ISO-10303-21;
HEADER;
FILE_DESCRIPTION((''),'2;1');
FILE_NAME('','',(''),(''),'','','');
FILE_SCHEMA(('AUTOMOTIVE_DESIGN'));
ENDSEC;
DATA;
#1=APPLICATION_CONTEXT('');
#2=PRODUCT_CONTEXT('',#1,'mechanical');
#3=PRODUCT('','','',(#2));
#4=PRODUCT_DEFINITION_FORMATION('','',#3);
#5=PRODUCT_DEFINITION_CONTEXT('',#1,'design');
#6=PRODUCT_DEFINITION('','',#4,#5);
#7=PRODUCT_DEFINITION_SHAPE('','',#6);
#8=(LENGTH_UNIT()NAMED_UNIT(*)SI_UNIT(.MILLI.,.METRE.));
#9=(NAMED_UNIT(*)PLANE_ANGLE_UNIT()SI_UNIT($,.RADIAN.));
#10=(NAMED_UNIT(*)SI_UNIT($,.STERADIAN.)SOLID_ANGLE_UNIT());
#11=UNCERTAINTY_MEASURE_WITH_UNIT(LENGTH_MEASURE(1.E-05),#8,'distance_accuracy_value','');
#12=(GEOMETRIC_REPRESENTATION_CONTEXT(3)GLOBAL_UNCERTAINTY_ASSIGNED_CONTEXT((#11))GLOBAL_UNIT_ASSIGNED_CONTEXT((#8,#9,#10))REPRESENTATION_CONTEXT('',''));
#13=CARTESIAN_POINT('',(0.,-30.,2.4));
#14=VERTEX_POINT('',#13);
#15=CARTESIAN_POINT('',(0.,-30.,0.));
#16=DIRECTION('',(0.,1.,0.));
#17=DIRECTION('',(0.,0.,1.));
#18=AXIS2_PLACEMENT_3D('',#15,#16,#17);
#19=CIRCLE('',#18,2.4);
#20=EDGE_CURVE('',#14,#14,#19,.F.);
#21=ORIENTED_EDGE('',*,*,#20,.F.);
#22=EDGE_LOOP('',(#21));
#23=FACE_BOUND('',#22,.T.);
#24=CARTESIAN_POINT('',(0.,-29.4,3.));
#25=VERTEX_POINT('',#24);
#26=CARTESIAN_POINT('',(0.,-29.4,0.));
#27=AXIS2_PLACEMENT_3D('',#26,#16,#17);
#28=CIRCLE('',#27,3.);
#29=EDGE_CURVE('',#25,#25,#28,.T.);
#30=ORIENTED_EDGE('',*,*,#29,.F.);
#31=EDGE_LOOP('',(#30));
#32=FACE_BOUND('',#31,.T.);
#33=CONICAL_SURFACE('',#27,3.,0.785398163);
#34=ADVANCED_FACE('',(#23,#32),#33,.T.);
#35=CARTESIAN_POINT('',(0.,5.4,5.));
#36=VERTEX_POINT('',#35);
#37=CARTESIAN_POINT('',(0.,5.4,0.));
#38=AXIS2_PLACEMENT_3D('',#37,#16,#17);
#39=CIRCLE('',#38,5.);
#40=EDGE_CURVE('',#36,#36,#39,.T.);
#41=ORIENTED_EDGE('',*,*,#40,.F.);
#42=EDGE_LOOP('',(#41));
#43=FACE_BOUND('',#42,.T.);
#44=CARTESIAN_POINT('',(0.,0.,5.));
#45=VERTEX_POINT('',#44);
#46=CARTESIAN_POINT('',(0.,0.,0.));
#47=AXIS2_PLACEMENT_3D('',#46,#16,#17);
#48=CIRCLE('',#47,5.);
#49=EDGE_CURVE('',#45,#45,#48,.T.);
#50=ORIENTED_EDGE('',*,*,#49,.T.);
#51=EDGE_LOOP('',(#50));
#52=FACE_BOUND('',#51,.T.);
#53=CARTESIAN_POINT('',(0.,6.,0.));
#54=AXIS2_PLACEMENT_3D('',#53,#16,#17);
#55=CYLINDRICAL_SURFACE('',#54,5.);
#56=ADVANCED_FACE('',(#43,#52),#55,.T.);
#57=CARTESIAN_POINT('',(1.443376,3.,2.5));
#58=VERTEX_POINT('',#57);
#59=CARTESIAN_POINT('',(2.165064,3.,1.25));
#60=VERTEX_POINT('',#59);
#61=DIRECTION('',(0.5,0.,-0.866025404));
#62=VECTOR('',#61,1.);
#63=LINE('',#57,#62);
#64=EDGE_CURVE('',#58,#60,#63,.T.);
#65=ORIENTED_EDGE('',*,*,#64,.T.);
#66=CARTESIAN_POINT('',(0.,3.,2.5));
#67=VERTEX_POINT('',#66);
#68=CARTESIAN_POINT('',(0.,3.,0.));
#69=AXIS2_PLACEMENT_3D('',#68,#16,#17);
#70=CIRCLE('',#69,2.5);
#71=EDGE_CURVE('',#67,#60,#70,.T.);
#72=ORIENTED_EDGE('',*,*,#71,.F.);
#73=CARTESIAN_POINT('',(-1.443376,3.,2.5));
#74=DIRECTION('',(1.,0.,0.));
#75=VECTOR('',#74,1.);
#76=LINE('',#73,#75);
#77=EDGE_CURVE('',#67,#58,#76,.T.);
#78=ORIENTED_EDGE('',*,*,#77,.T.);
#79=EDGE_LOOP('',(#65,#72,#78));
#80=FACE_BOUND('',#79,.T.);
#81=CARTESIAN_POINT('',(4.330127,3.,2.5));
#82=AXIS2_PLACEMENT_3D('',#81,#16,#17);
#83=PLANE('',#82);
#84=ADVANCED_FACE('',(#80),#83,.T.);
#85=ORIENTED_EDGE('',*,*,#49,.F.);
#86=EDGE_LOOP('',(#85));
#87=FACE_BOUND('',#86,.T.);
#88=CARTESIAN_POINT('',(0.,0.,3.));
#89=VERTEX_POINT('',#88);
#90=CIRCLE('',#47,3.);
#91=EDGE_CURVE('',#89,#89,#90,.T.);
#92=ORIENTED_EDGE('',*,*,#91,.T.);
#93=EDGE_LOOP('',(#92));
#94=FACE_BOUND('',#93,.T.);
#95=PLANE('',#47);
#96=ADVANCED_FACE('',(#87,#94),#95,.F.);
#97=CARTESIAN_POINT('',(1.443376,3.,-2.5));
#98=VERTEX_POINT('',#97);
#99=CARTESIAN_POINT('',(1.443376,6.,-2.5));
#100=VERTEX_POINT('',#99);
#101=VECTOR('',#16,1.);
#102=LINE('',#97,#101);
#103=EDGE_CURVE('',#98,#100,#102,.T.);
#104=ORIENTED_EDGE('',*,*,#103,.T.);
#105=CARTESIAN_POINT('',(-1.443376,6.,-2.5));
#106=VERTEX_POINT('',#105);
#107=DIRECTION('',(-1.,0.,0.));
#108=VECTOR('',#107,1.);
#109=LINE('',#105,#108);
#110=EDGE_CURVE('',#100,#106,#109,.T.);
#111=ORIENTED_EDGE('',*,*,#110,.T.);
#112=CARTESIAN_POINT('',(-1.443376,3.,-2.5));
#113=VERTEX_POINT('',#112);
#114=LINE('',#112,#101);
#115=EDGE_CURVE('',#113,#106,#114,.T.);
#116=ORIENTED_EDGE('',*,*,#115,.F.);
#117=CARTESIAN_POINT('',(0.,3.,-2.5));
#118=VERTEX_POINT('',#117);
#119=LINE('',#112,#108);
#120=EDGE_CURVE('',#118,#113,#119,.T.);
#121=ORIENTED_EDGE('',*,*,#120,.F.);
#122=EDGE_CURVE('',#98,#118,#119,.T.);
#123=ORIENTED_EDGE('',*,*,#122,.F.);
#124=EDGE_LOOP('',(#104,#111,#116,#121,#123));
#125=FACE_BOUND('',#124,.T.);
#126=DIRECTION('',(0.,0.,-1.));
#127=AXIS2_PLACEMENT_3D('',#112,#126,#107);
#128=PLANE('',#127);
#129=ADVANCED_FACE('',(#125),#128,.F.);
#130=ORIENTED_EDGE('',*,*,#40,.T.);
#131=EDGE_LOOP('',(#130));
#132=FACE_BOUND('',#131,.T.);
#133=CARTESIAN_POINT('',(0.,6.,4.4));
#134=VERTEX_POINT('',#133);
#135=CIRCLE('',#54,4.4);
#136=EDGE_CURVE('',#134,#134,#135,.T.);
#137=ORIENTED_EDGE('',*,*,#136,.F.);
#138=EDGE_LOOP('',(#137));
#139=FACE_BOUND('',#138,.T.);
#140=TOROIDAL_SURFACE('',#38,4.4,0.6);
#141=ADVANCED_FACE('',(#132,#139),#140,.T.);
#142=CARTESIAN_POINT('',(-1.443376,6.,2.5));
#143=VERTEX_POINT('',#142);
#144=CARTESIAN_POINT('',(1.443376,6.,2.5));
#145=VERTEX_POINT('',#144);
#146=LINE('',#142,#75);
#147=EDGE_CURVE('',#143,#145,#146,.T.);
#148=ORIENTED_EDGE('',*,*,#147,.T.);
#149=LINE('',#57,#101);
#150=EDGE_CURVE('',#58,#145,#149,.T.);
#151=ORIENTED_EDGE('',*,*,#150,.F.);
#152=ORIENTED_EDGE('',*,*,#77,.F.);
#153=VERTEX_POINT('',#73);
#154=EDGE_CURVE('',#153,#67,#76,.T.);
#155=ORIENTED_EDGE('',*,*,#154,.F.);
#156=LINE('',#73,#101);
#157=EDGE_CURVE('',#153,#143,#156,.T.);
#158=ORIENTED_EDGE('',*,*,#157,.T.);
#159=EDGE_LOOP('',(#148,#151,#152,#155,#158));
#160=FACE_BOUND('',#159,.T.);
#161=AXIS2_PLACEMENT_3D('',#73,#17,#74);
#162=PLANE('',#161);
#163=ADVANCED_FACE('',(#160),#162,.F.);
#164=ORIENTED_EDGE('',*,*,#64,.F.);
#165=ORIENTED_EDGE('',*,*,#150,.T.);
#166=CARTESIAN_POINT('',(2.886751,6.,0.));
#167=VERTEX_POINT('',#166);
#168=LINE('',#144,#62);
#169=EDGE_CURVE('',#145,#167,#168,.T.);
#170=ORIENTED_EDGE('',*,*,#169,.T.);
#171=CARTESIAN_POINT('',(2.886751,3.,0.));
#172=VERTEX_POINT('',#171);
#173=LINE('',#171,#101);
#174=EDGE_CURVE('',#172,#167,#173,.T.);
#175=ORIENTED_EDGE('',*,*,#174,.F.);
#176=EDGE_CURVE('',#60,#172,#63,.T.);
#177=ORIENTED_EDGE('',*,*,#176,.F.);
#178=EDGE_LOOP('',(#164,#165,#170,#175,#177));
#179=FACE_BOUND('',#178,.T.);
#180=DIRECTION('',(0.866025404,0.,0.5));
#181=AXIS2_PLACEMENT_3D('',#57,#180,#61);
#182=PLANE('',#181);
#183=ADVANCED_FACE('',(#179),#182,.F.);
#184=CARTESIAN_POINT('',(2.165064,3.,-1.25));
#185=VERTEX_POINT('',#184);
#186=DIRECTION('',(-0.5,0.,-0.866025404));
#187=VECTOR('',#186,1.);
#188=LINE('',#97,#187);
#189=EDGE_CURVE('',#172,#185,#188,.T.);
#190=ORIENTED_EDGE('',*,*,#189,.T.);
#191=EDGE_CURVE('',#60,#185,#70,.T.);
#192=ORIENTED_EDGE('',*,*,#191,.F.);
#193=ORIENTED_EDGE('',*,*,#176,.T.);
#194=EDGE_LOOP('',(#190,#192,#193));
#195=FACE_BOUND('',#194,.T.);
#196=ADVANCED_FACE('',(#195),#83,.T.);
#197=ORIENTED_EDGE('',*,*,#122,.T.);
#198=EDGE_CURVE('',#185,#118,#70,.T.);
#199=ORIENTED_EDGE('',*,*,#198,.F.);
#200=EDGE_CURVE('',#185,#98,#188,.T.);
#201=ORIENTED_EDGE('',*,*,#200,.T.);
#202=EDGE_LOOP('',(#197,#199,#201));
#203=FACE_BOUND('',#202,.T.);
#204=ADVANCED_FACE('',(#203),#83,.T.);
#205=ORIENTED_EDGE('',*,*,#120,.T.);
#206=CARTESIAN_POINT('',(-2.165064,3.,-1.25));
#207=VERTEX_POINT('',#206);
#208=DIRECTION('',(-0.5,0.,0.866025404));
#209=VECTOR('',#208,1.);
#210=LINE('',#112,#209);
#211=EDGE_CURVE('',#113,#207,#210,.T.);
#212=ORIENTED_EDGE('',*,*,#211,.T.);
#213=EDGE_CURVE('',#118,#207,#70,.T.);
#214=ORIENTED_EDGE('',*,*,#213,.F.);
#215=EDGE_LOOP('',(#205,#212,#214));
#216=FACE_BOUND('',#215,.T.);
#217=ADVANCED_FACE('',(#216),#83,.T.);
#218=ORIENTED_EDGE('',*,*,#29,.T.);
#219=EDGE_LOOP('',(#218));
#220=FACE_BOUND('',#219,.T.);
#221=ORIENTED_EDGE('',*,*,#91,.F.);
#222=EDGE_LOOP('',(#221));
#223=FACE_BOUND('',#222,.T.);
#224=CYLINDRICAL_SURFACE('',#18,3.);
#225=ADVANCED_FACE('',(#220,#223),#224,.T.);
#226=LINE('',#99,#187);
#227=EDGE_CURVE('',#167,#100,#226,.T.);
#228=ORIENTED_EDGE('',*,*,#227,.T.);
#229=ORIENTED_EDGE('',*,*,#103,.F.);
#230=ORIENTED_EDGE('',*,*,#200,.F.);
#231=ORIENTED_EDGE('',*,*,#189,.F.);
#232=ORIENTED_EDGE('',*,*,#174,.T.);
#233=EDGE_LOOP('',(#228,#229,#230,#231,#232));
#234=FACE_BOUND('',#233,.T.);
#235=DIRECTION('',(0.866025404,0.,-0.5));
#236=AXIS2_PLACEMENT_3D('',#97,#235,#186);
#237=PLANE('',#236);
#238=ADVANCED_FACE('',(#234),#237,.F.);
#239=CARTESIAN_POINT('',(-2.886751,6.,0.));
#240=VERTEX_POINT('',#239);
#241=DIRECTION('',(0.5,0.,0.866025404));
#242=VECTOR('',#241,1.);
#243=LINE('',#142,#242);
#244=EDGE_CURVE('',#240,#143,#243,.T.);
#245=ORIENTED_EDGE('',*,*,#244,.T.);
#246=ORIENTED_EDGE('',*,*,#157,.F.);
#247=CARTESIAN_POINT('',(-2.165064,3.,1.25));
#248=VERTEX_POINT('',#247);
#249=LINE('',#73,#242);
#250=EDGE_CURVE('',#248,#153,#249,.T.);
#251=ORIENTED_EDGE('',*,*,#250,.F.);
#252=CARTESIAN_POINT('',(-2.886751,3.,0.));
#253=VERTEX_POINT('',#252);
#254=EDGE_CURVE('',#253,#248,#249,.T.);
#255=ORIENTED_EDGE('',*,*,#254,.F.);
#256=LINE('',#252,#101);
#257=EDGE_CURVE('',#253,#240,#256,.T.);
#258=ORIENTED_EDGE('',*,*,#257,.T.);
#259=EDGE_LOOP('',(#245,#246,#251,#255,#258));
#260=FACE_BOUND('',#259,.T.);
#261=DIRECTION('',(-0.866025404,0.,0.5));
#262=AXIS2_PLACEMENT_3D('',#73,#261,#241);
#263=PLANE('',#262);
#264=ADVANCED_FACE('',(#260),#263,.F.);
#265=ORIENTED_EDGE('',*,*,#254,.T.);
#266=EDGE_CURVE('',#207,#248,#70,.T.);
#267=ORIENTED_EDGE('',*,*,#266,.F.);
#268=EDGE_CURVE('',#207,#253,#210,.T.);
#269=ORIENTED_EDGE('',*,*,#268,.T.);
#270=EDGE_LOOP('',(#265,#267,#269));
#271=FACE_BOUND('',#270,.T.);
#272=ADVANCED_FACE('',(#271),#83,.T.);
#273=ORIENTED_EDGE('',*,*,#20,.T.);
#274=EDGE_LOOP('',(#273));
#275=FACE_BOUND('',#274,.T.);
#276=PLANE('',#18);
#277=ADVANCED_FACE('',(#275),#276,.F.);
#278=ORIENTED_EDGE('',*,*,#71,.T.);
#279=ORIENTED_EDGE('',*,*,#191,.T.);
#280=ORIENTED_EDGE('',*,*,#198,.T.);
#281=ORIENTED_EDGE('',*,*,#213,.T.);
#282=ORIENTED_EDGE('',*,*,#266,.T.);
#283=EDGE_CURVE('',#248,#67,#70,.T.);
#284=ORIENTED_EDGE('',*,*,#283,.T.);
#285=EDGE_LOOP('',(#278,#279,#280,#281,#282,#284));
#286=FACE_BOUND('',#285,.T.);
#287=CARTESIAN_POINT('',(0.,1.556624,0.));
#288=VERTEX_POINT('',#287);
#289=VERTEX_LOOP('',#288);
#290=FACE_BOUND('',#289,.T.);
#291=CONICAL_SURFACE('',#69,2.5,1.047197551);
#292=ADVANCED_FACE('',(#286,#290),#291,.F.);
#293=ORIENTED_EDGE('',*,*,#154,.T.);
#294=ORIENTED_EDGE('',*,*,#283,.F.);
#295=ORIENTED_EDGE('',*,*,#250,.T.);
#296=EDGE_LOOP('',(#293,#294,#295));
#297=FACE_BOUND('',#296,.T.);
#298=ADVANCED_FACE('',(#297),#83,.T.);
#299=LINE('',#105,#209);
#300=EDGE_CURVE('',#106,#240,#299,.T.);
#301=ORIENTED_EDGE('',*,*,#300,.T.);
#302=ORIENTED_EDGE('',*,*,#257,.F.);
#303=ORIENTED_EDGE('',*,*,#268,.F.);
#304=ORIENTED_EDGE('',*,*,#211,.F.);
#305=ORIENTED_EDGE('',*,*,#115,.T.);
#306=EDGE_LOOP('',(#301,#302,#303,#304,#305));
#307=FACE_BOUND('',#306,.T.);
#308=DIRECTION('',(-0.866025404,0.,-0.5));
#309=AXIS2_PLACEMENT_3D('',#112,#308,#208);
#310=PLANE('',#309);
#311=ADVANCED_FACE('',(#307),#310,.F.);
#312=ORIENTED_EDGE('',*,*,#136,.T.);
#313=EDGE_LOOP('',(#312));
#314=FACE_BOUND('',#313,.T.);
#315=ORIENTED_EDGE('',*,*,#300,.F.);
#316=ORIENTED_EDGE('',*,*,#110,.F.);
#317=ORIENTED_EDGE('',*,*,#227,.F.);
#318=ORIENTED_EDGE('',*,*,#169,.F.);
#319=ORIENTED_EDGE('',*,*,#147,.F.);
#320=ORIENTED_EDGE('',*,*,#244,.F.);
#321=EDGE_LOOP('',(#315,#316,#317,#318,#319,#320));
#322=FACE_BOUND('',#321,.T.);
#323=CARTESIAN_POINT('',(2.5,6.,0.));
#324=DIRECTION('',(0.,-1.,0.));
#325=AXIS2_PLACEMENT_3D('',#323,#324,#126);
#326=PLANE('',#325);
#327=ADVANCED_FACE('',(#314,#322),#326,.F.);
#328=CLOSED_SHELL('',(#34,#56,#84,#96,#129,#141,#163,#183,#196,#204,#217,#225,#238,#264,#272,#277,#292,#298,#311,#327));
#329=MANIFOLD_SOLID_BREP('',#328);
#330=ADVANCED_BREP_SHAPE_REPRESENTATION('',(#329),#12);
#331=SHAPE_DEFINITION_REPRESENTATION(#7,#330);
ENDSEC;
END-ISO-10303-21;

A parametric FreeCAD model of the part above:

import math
import FreeCAD as App
import Part
import Sketcher
Q = App.Units.Quantity


def edges_at(feature, points):
    """Names of the edges that pass closest to the given points."""
    edges = feature.Shape.Edges
    near = lambda p: min(range(len(edges)), key=lambda i: edges[i].distToShape(Part.Vertex(*p))[0])
    return sorted({f"Edge{near(p) + 1}" for p in points})


def add_polygon(sketch, points):
    """Adds a closed chain of lines whose ends are joined by coincident constraints."""
    first, n = sketch.GeometryCount, len(points)
    for a, b in zip(points, points[1:] + points[:1]):
        sketch.addGeometry(Part.LineSegment(App.Vector(*a, 0), App.Vector(*b, 0)), False)
    for i in range(n):
        sketch.addConstraint(Sketcher.Constraint("Coincident", first + i, 2, first + (i + 1) % n, 1))

doc = App.newDocument("Part")
body = doc.addObject("PartDesign::Body", "Body")

# Sketch on XZ plane
sketch1 = body.newObject("Sketcher::SketchObject", "Sketch")
sketch1.AttachmentSupport = (doc.getObject("XZ_Plane"), [""])
sketch1.MapMode = "FlatFace"
sketch1.addGeometry(Part.Circle(App.Vector(0, 0, 0), App.Vector(0, 0, 1), 3), False)
sketch1.addConstraint(Sketcher.Constraint("Coincident", 0, 3, -1, 1))
sketch1.addConstraint(Sketcher.Constraint("Diameter", 0, Q("6 mm")))
pad1 = body.newObject("PartDesign::Pad", "Pad")
pad1.Profile = sketch1
pad1.Length = 30
doc.recompute()

chamfer = body.newObject("PartDesign::Chamfer", "Chamfer")
chamfer.Base = (pad1, edges_at(pad1, [(0, -30, -3)]))
chamfer.Size = 0.6

# Sketch on XY plane
sketch2 = body.newObject("Sketcher::SketchObject", "Sketch001")
sketch2.AttachmentSupport = (doc.getObject("XY_Plane"), [""])
sketch2.MapMode = "FlatFace"
sketch2.addGeometry(Part.LineSegment(App.Vector(2.5, 6, 0), App.Vector(2.5, 3, 0)), False)
sketch2.addGeometry(Part.LineSegment(App.Vector(2.5, 3, 0), App.Vector(0, 1.6, 0)), False)
sketch2.addGeometry(Part.LineSegment(App.Vector(0, 1.6, 0), App.Vector(0, 0, 0)), False)
sketch2.addGeometry(Part.LineSegment(App.Vector(0, 0, 0), App.Vector(5, 0, 0)), False)
sketch2.addGeometry(Part.LineSegment(App.Vector(5, 0, 0), App.Vector(5, 5.4, 0)), False)
sketch2.addGeometry(Part.ArcOfCircle(Part.Circle(App.Vector(4.4, 5.4, 0), App.Vector(0, 0, 1), 0.6), math.radians(0), math.radians(90)), False)
sketch2.addGeometry(Part.LineSegment(App.Vector(4.4, 6, 0), App.Vector(2.5, 6, 0)), False)
sketch2.addConstraint(Sketcher.Constraint("Coincident", 0, 2, 1, 1))
sketch2.addConstraint(Sketcher.Constraint("Coincident", 1, 2, 2, 1))
sketch2.addConstraint(Sketcher.Constraint("Coincident", 2, 2, 3, 1))
sketch2.addConstraint(Sketcher.Constraint("Coincident", 3, 2, 4, 1))
sketch2.addConstraint(Sketcher.Constraint("Tangent", 4, 2, 5, 1))
sketch2.addConstraint(Sketcher.Constraint("Tangent", 5, 2, 6, 1))
sketch2.addConstraint(Sketcher.Constraint("Coincident", 6, 2, 0, 1))
sketch2.addConstraint(Sketcher.Constraint("Vertical", 0))
sketch2.addConstraint(Sketcher.Constraint("Vertical", 2))
sketch2.addConstraint(Sketcher.Constraint("Horizontal", 3))
sketch2.addConstraint(Sketcher.Constraint("Vertical", 4))
sketch2.addConstraint(Sketcher.Constraint("Horizontal", 6))
sketch2.addConstraint(Sketcher.Constraint("Coincident", 2, 2, -1, 1))
sketch2.addConstraint(Sketcher.Constraint("Radius", 5, Q("0.6 mm")))
sketch2.addConstraint(Sketcher.Constraint("DistanceX", 3, 1, 3, 2, Q("5 mm")))
sketch2.addConstraint(Sketcher.Constraint("DistanceY", 0, 2, 0, 1, Q("3 mm")))
sketch2.addConstraint(Sketcher.Constraint("Angle", 1, Q("-150 deg")))
sketch2.addConstraint(Sketcher.Constraint("DistanceX", 6, 2, 6, 1, Q("1.9 mm")))
sketch2.addConstraint(Sketcher.Constraint("DistanceY", 4, 1, 4, 2, Q("5.4 mm")))
revolution = body.newObject("PartDesign::Revolution", "Revolution")
revolution.Profile = sketch2
revolution.ReferenceAxis = (sketch2, ["V_Axis"])
revolution.Angle = 360

# Sketch on XZ plane
sketch3 = body.newObject("Sketcher::SketchObject", "Sketch002")
sketch3.AttachmentSupport = (doc.getObject("XZ_Plane"), [""])
sketch3.MapMode = "FlatFace"
sketch3.AttachmentOffset = App.Placement(App.Vector(0, 0, -6), App.Rotation())
add_polygon(sketch3, [(-1.4, 2.5), (1.4, 2.5), (2.9, 0), (1.4, -2.5), (-1.4, -2.5), (-2.9, 0)])  # lines 0-5
sketch3.addConstraint(Sketcher.Constraint("Horizontal", 0))
sketch3.addConstraint(Sketcher.Constraint("Horizontal", 3))
sketch3.addConstraint(Sketcher.Constraint("Symmetric", 0, 2, 3, 2, -1, 1))
sketch3.addConstraint(Sketcher.Constraint("Symmetric", 1, 2, 4, 2, -1, 1))
sketch3.addConstraint(Sketcher.Constraint("PointOnObject", 1, 2, -1))
sketch3.addConstraint(Sketcher.Constraint("Parallel", 2, 5))
sketch3.addConstraint(Sketcher.Constraint("Vertical", 0, 2, 2, 2))
sketch3.addConstraint(Sketcher.Constraint("Angle", 1, Q("-60 deg")))
sketch3.addConstraint(Sketcher.Constraint("DistanceY", 2, 2, 0, 2, Q("5 mm")))
sketch3.addConstraint(Sketcher.Constraint("DistanceX", 0, 1, 0, 2, Q("2.886751 mm")))
pocket1 = body.newObject("PartDesign::Pocket", "Pocket")
pocket1.Profile = sketch3
pocket1.Length = 3
pocket1.Reversed = True

doc.recompute()
